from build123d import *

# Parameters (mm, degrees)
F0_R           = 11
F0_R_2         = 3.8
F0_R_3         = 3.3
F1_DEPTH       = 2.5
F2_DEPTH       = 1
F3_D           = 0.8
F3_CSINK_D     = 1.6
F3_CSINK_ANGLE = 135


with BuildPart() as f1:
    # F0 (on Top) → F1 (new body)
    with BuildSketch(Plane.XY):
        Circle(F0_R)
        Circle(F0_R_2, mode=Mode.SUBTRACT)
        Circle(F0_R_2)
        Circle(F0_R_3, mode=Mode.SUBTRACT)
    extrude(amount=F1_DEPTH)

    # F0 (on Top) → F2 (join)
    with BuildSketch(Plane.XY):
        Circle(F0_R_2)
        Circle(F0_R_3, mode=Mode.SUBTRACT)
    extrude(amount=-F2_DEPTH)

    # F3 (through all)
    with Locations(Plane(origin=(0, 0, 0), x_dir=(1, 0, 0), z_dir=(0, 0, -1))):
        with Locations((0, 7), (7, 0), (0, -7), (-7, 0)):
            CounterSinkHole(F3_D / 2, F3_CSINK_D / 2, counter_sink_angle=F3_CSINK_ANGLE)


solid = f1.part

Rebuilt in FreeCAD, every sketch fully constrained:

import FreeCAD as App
import Part
import Sketcher

V = App.Vector

doc = App.newDocument("Part")
params = doc.addObject("Spreadsheet::Sheet", "Params")
for row, (alias, value) in enumerate([
    ("sketch1_diameter", "22 mm"),
    ("sketch1_diameter2", "6.6 mm"),
    ("pad1_length", "2.5 mm"),
    ("sketch2_diameter", "7.6 mm"),
    ("sketch2_diameter2", "6.6 mm"),
    ("pad2_length", "1 mm"),
    ("sketch3_diameter", "0.8 mm"),
    ("hole_diameter", "0.8 mm"),
    ("hole_csink_diameter", "1.6 mm"),
], start=1):
    params.set(f"A{row}", alias)
    params.set(f"B{row}", "=" + value)
    params.setAlias(f"B{row}", alias)

body = doc.addObject("PartDesign::Body", "Body")

# Sketch on XY plane
sketch1 = body.newObject("Sketcher::SketchObject", "Sketch")
sketch1.AttachmentSupport = (doc.getObject("XY_Plane"), [""])
sketch1.MapMode = "FlatFace"
sketch1.addGeometry(Part.Circle(V(0, 0, 0), V(0, 0, 1), 11), False)
sketch1.addGeometry(Part.Circle(V(0, 0, 0), V(0, 0, 1), 3.3), False)
sketch1.addConstraint(Sketcher.Constraint("Coincident", 0, 3, -1, 1))
sketch1.addConstraint(Sketcher.Constraint("Coincident", 1, 3, -1, 1))
sketch1.addConstraint(Sketcher.Constraint("Diameter", 0, 22.0))
sketch1.addConstraint(Sketcher.Constraint("Diameter", 1, 6.6))
sketch1.setExpression("Constraints[2]", "Params.sketch1_diameter")
sketch1.setExpression("Constraints[3]", "Params.sketch1_diameter2")
pad1 = body.newObject("PartDesign::Pad", "Pad")
pad1.Profile = sketch1
pad1.setExpression("Length", "Params.pad1_length")

# Sketch on XY plane
sketch2 = body.newObject("Sketcher::SketchObject", "Sketch001")
sketch2.AttachmentSupport = (doc.getObject("XY_Plane"), [""])
sketch2.MapMode = "FlatFace"
sketch2.addGeometry(Part.Circle(V(0, 0, 0), V(0, 0, 1), 3.8), False)
sketch2.addGeometry(Part.Circle(V(0, 0, 0), V(0, 0, 1), 3.3), False)
sketch2.addConstraint(Sketcher.Constraint("Coincident", 0, 3, -1, 1))
sketch2.addConstraint(Sketcher.Constraint("Coincident", 1, 3, -1, 1))
sketch2.addConstraint(Sketcher.Constraint("Diameter", 0, 7.6))
sketch2.addConstraint(Sketcher.Constraint("Diameter", 1, 6.6))
sketch2.setExpression("Constraints[2]", "Params.sketch2_diameter")
sketch2.setExpression("Constraints[3]", "Params.sketch2_diameter2")
pad2 = body.newObject("PartDesign::Pad", "Pad001")
pad2.Profile = sketch2
pad2.setExpression("Length", "Params.pad2_length")
pad2.Reversed = True

# Sketch on XY plane
sketch3 = body.newObject("Sketcher::SketchObject", "Sketch002")
sketch3.AttachmentSupport = (doc.getObject("XY_Plane"), [""])
sketch3.MapMode = "FlatFace"
sketch3.addGeometry(Part.Circle(V(0, -7, 0), V(0, 0, 1), 0.4), False)
sketch3.addGeometry(Part.Circle(V(7, 0, 0), V(0, 0, 1), 0.4), False)
sketch3.addGeometry(Part.Circle(V(0, 7, 0), V(0, 0, 1), 0.4), False)
sketch3.addGeometry(Part.Circle(V(-7, 0, 0), V(0, 0, 1), 0.4), False)
sketch3.addConstraint(Sketcher.Constraint("Equal", 0, 1))
sketch3.addConstraint(Sketcher.Constraint("Equal", 1, 2))
sketch3.addConstraint(Sketcher.Constraint("Equal", 2, 3))
sketch3.addConstraint(Sketcher.Constraint("Symmetric", 0, 3, 2, 3, -1, 1))
sketch3.addConstraint(Sketcher.Constraint("Symmetric", 1, 3, 3, 3, -1, 1))
sketch3.addConstraint(Sketcher.Constraint("PointOnObject", 0, 3, -2))
sketch3.addConstraint(Sketcher.Constraint("PointOnObject", 1, 3, -1))
sketch3.addConstraint(Sketcher.Constraint("Diameter", 0, 0.8))
sketch3.addConstraint(Sketcher.Constraint("DistanceY", 0, 3, -1, 1, 7.0))
sketch3.addConstraint(Sketcher.Constraint("DistanceX", -1, 1, 1, 3, 7.0))
sketch3.setExpression("Constraints[7]", "Params.sketch3_diameter")
doc.recompute()
hole = body.newObject("PartDesign::Hole", "Hole")
hole.Profile = sketch3
hole.ThreadType = "None"
hole.setExpression("Diameter", "Params.hole_diameter")
hole.DepthType = "ThroughAll"
hole.HoleCutType = "Countersink"
hole.setExpression("HoleCutDiameter", "Params.hole_csink_diameter")
hole.HoleCutCountersinkAngle = 135
hole.Reversed = True

doc.recompute()
